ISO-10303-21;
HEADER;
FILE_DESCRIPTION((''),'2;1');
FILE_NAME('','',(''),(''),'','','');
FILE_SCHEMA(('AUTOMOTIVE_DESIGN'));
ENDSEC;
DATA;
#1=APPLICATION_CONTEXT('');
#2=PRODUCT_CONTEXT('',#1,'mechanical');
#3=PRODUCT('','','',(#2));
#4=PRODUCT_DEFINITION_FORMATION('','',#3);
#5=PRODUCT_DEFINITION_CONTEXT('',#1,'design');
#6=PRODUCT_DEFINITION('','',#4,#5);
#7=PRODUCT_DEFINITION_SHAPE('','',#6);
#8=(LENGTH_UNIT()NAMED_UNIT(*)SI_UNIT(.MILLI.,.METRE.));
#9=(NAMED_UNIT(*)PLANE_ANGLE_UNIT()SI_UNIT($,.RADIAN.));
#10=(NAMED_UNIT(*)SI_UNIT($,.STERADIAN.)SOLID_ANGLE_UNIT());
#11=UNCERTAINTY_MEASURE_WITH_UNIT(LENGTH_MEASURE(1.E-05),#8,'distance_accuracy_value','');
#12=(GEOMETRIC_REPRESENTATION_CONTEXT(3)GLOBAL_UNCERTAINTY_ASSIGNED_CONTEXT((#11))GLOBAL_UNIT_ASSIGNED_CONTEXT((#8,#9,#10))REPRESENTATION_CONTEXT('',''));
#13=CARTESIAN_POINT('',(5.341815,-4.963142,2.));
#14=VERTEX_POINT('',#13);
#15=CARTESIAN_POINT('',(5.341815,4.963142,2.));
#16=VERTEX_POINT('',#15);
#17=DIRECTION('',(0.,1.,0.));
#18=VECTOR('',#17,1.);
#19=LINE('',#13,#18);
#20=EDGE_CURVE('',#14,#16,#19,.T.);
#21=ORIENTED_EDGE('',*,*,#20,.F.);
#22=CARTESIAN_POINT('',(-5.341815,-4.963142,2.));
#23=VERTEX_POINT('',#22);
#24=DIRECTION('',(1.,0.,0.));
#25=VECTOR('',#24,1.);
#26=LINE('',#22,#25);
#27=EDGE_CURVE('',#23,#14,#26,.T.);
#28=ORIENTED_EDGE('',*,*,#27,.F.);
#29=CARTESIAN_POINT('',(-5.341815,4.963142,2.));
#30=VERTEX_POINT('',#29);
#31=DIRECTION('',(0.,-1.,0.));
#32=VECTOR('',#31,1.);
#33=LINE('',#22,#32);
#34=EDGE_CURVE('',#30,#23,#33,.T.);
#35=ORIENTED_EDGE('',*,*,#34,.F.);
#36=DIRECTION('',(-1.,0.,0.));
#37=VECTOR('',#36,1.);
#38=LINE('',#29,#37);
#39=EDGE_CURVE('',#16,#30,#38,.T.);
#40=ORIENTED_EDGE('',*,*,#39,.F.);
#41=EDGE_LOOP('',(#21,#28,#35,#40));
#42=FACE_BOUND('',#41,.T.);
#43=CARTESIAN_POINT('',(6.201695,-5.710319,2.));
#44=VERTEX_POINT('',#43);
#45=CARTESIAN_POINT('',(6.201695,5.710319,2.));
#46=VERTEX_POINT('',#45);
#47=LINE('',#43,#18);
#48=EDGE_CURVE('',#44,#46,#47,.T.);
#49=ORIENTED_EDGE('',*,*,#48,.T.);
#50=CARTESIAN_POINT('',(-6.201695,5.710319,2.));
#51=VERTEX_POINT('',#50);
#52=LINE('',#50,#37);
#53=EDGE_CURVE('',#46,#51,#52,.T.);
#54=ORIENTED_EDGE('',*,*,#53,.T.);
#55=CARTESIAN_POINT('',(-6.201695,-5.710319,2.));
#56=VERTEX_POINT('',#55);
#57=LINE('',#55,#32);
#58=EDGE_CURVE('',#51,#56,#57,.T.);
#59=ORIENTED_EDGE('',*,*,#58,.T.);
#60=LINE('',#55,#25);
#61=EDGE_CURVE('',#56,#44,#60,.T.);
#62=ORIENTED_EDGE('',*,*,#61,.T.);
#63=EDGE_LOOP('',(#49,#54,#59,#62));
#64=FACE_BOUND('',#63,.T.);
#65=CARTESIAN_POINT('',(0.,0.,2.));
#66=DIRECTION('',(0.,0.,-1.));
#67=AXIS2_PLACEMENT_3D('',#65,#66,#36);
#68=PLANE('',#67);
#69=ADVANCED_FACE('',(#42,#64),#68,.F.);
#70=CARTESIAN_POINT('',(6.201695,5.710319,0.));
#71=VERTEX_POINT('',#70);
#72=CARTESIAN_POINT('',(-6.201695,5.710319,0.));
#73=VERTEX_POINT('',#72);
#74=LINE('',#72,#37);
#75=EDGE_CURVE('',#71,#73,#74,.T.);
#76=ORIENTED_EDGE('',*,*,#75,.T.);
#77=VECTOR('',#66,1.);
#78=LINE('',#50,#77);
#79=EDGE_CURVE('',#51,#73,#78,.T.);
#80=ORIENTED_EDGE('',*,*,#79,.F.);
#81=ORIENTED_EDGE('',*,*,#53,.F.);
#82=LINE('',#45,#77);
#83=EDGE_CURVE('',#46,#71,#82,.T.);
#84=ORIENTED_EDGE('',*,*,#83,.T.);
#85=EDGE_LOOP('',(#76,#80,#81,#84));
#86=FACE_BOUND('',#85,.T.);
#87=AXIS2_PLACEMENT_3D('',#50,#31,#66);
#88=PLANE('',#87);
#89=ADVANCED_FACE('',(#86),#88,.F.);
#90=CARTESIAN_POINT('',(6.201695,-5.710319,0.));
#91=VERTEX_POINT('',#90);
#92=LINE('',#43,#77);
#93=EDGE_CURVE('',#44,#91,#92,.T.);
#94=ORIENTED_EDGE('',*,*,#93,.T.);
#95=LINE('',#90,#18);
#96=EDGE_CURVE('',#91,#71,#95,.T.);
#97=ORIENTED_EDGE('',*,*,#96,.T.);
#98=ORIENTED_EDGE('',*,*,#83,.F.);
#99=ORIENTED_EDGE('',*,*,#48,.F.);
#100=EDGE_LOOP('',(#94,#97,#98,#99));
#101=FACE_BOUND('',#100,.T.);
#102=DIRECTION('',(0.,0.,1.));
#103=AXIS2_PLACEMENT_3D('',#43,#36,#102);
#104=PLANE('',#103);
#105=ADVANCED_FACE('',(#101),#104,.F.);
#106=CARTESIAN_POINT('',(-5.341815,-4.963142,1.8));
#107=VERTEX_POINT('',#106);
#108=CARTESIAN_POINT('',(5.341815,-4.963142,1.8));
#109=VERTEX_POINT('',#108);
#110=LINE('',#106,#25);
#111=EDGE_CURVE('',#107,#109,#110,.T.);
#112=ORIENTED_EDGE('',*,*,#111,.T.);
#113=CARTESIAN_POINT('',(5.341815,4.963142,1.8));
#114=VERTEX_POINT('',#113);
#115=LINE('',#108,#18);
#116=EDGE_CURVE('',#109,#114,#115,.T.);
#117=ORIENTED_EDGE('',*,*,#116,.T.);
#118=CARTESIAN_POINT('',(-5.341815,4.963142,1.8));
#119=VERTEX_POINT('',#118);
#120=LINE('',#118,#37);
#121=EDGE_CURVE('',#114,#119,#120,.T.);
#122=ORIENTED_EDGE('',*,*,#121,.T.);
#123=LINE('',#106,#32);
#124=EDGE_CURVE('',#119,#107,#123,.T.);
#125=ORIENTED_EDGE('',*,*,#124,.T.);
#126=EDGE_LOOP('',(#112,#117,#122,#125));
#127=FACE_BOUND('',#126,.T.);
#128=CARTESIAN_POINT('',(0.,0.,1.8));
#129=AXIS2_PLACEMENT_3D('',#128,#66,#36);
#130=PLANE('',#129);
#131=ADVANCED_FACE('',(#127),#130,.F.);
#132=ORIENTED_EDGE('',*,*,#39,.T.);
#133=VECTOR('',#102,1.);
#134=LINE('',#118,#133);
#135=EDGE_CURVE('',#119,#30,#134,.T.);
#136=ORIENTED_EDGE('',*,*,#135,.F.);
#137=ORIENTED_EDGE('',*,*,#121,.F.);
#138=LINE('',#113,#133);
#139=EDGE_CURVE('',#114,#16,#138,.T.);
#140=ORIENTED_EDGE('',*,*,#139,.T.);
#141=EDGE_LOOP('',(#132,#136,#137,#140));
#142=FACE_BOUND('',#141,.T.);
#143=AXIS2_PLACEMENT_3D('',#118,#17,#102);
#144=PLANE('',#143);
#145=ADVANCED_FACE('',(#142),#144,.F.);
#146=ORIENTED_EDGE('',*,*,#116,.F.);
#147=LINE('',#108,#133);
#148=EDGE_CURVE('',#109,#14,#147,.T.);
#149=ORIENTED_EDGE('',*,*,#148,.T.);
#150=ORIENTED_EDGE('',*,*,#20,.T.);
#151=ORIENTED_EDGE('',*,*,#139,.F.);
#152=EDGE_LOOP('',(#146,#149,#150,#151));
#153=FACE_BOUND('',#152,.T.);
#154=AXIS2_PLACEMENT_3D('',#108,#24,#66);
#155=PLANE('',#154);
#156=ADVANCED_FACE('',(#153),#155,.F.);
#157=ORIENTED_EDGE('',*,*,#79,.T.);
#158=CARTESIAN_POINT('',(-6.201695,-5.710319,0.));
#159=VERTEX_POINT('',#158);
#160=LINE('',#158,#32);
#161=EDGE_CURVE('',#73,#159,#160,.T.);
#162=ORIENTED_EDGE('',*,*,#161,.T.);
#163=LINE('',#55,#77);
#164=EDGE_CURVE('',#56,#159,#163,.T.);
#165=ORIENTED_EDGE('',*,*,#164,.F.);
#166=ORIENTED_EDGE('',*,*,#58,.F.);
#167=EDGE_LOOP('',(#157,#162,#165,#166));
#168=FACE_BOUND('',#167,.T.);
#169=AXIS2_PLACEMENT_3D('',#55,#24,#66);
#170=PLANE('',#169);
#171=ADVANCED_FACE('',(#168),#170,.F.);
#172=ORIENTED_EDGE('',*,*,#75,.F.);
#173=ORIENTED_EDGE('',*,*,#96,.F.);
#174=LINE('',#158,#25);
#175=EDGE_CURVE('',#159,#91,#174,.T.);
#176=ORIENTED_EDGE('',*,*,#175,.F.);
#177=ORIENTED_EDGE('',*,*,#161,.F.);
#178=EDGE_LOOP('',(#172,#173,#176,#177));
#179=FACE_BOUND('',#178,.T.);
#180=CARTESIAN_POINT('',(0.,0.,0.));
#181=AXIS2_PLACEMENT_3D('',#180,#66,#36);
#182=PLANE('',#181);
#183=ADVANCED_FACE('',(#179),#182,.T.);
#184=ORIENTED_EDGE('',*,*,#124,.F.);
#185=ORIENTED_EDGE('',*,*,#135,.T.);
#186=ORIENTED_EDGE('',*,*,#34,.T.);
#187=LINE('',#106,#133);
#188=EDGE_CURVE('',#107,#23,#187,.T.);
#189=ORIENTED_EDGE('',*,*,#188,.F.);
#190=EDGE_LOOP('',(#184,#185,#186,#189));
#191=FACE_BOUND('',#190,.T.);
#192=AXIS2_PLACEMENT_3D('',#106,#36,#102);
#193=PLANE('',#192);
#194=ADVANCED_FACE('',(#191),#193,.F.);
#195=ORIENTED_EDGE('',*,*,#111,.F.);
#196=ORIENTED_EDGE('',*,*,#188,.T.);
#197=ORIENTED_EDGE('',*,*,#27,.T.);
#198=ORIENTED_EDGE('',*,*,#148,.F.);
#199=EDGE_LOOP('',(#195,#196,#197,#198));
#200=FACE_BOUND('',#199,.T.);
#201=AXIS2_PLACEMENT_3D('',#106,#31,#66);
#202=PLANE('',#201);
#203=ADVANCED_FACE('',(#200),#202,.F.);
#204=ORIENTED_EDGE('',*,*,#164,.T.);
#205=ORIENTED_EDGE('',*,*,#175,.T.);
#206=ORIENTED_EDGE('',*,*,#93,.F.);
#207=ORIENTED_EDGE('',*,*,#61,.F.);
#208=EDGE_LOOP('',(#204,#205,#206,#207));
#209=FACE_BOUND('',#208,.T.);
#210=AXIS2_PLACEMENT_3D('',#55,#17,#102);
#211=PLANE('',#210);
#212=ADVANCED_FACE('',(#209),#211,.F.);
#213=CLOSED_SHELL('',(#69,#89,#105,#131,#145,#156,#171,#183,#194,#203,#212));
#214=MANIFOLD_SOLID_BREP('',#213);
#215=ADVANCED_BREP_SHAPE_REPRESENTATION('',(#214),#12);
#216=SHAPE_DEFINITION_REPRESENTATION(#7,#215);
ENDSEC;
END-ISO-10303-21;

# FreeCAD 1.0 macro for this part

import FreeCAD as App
import Part
import Sketcher


def add_polygon(sketch, points):
    """Adds a closed chain of lines whose ends are joined by coincident constraints."""
    first, n = sketch.GeometryCount, len(points)
    for a, b in zip(points, points[1:] + points[:1]):
        sketch.addGeometry(Part.LineSegment(App.Vector(*a, 0), App.Vector(*b, 0)), False)
    for i in range(n):
        sketch.addConstraint(Sketcher.Constraint("Coincident", first + i, 2, first + (i + 1) % n, 1))

doc = App.newDocument("Part")
body = doc.addObject("PartDesign::Body", "Body")

# Sketch on XY plane
sketch1 = doc.addObject("Sketcher::SketchObject", "Sketch")
body.addObject(sketch1)
sketch1.AttachmentSupport = (doc.XY_Plane, [""])
sketch1.MapMode = "FlatFace"
add_polygon(sketch1, [(-6, 6), (-6, -6), (6, -6), (6, 6)])  # lines 0-3
sketch1.addConstraint([
    Sketcher.Constraint("Vertical", 0),
    Sketcher.Constraint("Horizontal", 1),
    Sketcher.Constraint("Vertical", 2),
    Sketcher.Constraint("Horizontal", 3),
    Sketcher.Constraint("Symmetric", 0, 2, 2, 2, -1, 1),
    Sketcher.Constraint("DistanceX", 1, 1, 1, 2, 12.403389),
    Sketcher.Constraint("DistanceY", 0, 2, 0, 1, 11.420639),
])
pad1 = doc.addObject("PartDesign::Pad", "Pad")
body.addObject(pad1)
pad1.Profile = sketch1
pad1.Length = 2

# Sketch on XY plane
sketch2 = doc.addObject("Sketcher::SketchObject", "Sketch001")
body.addObject(sketch2)
sketch2.AttachmentSupport = (doc.XY_Plane, [""])
sketch2.MapMode = "FlatFace"
sketch2.AttachmentOffset = App.Placement(App.Vector(0, 0, 2), App.Rotation())
add_polygon(sketch2, [(-5, 5), (-5, -5), (5, -5), (5, 5)])  # lines 0-3
sketch2.addConstraint([
    Sketcher.Constraint("Vertical", 0),
    Sketcher.Constraint("Horizontal", 1),
    Sketcher.Constraint("Vertical", 2),
    Sketcher.Constraint("Horizontal", 3),
    Sketcher.Constraint("Symmetric", 0, 2, 2, 2, -1, 1),
    Sketcher.Constraint("DistanceX", 1, 1, 1, 2, 10.683629),
    Sketcher.Constraint("DistanceY", 0, 2, 0, 1, 9.926283),
])
pocket1 = doc.addObject("PartDesign::Pocket", "Pocket")
body.addObject(pocket1)
pocket1.Profile = sketch2
pocket1.Length = 0.2

doc.recompute()
